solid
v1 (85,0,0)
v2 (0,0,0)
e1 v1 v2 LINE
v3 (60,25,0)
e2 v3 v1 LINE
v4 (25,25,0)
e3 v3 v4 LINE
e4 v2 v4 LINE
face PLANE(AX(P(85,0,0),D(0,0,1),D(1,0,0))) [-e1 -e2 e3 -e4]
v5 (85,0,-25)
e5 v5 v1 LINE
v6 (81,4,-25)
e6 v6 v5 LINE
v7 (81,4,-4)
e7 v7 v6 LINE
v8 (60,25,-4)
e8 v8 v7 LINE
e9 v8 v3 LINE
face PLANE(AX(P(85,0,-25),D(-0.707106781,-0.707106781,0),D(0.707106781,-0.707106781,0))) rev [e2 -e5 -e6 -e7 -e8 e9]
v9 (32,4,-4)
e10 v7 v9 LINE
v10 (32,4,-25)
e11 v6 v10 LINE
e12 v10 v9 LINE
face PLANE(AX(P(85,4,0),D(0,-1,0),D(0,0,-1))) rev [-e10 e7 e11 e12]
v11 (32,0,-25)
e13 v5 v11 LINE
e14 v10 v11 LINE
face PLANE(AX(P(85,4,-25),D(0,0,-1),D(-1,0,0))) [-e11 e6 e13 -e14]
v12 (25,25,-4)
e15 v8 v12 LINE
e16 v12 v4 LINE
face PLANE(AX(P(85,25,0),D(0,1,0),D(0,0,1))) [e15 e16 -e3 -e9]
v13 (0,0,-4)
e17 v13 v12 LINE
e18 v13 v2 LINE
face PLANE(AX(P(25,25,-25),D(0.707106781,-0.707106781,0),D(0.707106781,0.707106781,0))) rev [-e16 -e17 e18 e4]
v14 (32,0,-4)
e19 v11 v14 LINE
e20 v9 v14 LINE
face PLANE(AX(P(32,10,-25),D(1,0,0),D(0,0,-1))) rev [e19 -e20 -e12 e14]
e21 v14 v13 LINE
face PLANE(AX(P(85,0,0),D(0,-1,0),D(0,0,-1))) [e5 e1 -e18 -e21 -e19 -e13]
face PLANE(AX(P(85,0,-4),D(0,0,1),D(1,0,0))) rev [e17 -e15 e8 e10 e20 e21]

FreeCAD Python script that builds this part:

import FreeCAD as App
import Part
import Sketcher

doc = App.newDocument("Part")
body = doc.addObject("PartDesign::Body", "Body")

# Sketch on YZ plane
sketch1 = body.newObject("Sketcher::SketchObject", "Sketch")
sketch1.AttachmentSupport = (doc.getObject("YZ_Plane"), [""])
sketch1.MapMode = "FlatFace"
sketch1.addGeometry([
    Part.LineSegment(App.Vector(25, 0, 0), App.Vector(0, 0, 0)),  # 0
    Part.LineSegment(App.Vector(0, 0, 0), App.Vector(0, -25, 0)),  # 1
    Part.LineSegment(App.Vector(0, -25, 0), App.Vector(4, -25, 0)),  # 2
    Part.LineSegment(App.Vector(4, -25, 0), App.Vector(4, -4, 0)),  # 3
    Part.LineSegment(App.Vector(4, -4, 0), App.Vector(25, -4, 0)),  # 4
    Part.LineSegment(App.Vector(25, -4, 0), App.Vector(25, 0, 0)),  # 5
], False)
sketch1.addConstraint([
    Sketcher.Constraint("Coincident", 0, 2, 1, 1),
    Sketcher.Constraint("Coincident", 1, 2, 2, 1),
    Sketcher.Constraint("Coincident", 2, 2, 3, 1),
    Sketcher.Constraint("Coincident", 3, 2, 4, 1),
    Sketcher.Constraint("Coincident", 4, 2, 5, 1),
    Sketcher.Constraint("Coincident", 5, 2, 0, 1),
    Sketcher.Constraint("Horizontal", 0),
    Sketcher.Constraint("Vertical", 1),
    Sketcher.Constraint("Horizontal", 2),
    Sketcher.Constraint("Vertical", 3),
    Sketcher.Constraint("Horizontal", 4),
    Sketcher.Constraint("Vertical", 5),
    Sketcher.Constraint("Coincident", 0, 2, -1, 1),
    Sketcher.Constraint("Equal", 0, 1),
    Sketcher.Constraint("Equal", 4, 3),
    Sketcher.Constraint("DistanceX", 0, 2, 0, 1, 25.0),
    Sketcher.Constraint("DistanceX", 2, 1, 2, 2, 4.0),
])
pad1 = body.newObject("PartDesign::Pad", "Pad")
pad1.Profile = sketch1
pad1.Length = 85

# Sketch on XY plane
sketch2 = body.newObject("Sketcher::SketchObject", "Sketch001")
sketch2.AttachmentSupport = (doc.getObject("XY_Plane"), [""])
sketch2.MapMode = "FlatFace"
sketch2.addGeometry([
    Part.LineSegment(App.Vector(0, 25, 0), App.Vector(0, 0, 0)),  # 0
    Part.LineSegment(App.Vector(0, 0, 0), App.Vector(25, 25, 0)),  # 1
    Part.LineSegment(App.Vector(25, 25, 0), App.Vector(0, 25, 0)),  # 2
    Part.LineSegment(App.Vector(85, 25, 0), App.Vector(60, 25, 0)),  # 3
    Part.LineSegment(App.Vector(60, 25, 0), App.Vector(85, 0, 0)),  # 4
    Part.LineSegment(App.Vector(85, 0, 0), App.Vector(85, 25, 0)),  # 5
], False)
sketch2.addConstraint([
    Sketcher.Constraint("Coincident", 0, 2, 1, 1),
    Sketcher.Constraint("Coincident", 1, 2, 2, 1),
    Sketcher.Constraint("Coincident", 2, 2, 0, 1),
    Sketcher.Constraint("Coincident", 3, 2, 4, 1),
    Sketcher.Constraint("Coincident", 4, 2, 5, 1),
    Sketcher.Constraint("Coincident", 5, 2, 3, 1),
    Sketcher.Constraint("Vertical", 0),
    Sketcher.Constraint("Horizontal", 2),
    Sketcher.Constraint("Horizontal", 3),
    Sketcher.Constraint("Vertical", 5),
    Sketcher.Constraint("Coincident", 0, 2, -1, 1),
    Sketcher.Constraint("PointOnObject", 4, 2, -1),
    Sketcher.Constraint("Perpendicular", 1, 4),
    Sketcher.Constraint("Horizontal", 2, 2, 3, 2),
    Sketcher.Constraint("Equal", 2, 3),
    Sketcher.Constraint("DistanceX", 2, 2, 2, 1, 25.0),
    Sketcher.Constraint("DistanceX", -1, 1, 3, 2, 60.0),
])
pocket1 = body.newObject("PartDesign::Pocket", "Pocket")
pocket1.Profile = sketch2
pocket1.Type = "ThroughAll"

# Sketch on XZ plane
sketch3 = body.newObject("Sketcher::SketchObject", "Sketch002")
sketch3.AttachmentSupport = (doc.getObject("XZ_Plane"), [""])
sketch3.MapMode = "FlatFace"
sketch3.addGeometry([
    Part.LineSegment(App.Vector(0, -4, 0), App.Vector(0, -25, 0)),
    Part.LineSegment(App.Vector(0, -25, 0), App.Vector(32, -25, 0)),
    Part.LineSegment(App.Vector(32, -25, 0), App.Vector(32, -4, 0)),
    Part.LineSegment(App.Vector(32, -4, 0), App.Vector(0, -4, 0)),
], False)
sketch3.addConstraint([
    Sketcher.Constraint("Coincident", 0, 2, 1, 1),
    Sketcher.Constraint("Coincident", 1, 2, 2, 1),
    Sketcher.Constraint("Coincident", 2, 2, 3, 1),
    Sketcher.Constraint("Coincident", 3, 2, 0, 1),
    Sketcher.Constraint("Vertical", 0),
    Sketcher.Constraint("Horizontal", 1),
    Sketcher.Constraint("Vertical", 2),
    Sketcher.Constraint("Horizontal", 3),
    Sketcher.Constraint("PointOnObject", 0, 2, -2),
    Sketcher.Constraint("DistanceX", 1, 1, 1, 2, 32.0),
    Sketcher.Constraint("DistanceY", 0, 2, 0, 1, 21.0),
    Sketcher.Constraint("DistanceY", 0, 2, -1, 1, 25.0),
])
pocket2 = body.newObject("PartDesign::Pocket", "Pocket001")
pocket2.Profile = sketch3
pocket2.Length = 10

doc.recompute()
